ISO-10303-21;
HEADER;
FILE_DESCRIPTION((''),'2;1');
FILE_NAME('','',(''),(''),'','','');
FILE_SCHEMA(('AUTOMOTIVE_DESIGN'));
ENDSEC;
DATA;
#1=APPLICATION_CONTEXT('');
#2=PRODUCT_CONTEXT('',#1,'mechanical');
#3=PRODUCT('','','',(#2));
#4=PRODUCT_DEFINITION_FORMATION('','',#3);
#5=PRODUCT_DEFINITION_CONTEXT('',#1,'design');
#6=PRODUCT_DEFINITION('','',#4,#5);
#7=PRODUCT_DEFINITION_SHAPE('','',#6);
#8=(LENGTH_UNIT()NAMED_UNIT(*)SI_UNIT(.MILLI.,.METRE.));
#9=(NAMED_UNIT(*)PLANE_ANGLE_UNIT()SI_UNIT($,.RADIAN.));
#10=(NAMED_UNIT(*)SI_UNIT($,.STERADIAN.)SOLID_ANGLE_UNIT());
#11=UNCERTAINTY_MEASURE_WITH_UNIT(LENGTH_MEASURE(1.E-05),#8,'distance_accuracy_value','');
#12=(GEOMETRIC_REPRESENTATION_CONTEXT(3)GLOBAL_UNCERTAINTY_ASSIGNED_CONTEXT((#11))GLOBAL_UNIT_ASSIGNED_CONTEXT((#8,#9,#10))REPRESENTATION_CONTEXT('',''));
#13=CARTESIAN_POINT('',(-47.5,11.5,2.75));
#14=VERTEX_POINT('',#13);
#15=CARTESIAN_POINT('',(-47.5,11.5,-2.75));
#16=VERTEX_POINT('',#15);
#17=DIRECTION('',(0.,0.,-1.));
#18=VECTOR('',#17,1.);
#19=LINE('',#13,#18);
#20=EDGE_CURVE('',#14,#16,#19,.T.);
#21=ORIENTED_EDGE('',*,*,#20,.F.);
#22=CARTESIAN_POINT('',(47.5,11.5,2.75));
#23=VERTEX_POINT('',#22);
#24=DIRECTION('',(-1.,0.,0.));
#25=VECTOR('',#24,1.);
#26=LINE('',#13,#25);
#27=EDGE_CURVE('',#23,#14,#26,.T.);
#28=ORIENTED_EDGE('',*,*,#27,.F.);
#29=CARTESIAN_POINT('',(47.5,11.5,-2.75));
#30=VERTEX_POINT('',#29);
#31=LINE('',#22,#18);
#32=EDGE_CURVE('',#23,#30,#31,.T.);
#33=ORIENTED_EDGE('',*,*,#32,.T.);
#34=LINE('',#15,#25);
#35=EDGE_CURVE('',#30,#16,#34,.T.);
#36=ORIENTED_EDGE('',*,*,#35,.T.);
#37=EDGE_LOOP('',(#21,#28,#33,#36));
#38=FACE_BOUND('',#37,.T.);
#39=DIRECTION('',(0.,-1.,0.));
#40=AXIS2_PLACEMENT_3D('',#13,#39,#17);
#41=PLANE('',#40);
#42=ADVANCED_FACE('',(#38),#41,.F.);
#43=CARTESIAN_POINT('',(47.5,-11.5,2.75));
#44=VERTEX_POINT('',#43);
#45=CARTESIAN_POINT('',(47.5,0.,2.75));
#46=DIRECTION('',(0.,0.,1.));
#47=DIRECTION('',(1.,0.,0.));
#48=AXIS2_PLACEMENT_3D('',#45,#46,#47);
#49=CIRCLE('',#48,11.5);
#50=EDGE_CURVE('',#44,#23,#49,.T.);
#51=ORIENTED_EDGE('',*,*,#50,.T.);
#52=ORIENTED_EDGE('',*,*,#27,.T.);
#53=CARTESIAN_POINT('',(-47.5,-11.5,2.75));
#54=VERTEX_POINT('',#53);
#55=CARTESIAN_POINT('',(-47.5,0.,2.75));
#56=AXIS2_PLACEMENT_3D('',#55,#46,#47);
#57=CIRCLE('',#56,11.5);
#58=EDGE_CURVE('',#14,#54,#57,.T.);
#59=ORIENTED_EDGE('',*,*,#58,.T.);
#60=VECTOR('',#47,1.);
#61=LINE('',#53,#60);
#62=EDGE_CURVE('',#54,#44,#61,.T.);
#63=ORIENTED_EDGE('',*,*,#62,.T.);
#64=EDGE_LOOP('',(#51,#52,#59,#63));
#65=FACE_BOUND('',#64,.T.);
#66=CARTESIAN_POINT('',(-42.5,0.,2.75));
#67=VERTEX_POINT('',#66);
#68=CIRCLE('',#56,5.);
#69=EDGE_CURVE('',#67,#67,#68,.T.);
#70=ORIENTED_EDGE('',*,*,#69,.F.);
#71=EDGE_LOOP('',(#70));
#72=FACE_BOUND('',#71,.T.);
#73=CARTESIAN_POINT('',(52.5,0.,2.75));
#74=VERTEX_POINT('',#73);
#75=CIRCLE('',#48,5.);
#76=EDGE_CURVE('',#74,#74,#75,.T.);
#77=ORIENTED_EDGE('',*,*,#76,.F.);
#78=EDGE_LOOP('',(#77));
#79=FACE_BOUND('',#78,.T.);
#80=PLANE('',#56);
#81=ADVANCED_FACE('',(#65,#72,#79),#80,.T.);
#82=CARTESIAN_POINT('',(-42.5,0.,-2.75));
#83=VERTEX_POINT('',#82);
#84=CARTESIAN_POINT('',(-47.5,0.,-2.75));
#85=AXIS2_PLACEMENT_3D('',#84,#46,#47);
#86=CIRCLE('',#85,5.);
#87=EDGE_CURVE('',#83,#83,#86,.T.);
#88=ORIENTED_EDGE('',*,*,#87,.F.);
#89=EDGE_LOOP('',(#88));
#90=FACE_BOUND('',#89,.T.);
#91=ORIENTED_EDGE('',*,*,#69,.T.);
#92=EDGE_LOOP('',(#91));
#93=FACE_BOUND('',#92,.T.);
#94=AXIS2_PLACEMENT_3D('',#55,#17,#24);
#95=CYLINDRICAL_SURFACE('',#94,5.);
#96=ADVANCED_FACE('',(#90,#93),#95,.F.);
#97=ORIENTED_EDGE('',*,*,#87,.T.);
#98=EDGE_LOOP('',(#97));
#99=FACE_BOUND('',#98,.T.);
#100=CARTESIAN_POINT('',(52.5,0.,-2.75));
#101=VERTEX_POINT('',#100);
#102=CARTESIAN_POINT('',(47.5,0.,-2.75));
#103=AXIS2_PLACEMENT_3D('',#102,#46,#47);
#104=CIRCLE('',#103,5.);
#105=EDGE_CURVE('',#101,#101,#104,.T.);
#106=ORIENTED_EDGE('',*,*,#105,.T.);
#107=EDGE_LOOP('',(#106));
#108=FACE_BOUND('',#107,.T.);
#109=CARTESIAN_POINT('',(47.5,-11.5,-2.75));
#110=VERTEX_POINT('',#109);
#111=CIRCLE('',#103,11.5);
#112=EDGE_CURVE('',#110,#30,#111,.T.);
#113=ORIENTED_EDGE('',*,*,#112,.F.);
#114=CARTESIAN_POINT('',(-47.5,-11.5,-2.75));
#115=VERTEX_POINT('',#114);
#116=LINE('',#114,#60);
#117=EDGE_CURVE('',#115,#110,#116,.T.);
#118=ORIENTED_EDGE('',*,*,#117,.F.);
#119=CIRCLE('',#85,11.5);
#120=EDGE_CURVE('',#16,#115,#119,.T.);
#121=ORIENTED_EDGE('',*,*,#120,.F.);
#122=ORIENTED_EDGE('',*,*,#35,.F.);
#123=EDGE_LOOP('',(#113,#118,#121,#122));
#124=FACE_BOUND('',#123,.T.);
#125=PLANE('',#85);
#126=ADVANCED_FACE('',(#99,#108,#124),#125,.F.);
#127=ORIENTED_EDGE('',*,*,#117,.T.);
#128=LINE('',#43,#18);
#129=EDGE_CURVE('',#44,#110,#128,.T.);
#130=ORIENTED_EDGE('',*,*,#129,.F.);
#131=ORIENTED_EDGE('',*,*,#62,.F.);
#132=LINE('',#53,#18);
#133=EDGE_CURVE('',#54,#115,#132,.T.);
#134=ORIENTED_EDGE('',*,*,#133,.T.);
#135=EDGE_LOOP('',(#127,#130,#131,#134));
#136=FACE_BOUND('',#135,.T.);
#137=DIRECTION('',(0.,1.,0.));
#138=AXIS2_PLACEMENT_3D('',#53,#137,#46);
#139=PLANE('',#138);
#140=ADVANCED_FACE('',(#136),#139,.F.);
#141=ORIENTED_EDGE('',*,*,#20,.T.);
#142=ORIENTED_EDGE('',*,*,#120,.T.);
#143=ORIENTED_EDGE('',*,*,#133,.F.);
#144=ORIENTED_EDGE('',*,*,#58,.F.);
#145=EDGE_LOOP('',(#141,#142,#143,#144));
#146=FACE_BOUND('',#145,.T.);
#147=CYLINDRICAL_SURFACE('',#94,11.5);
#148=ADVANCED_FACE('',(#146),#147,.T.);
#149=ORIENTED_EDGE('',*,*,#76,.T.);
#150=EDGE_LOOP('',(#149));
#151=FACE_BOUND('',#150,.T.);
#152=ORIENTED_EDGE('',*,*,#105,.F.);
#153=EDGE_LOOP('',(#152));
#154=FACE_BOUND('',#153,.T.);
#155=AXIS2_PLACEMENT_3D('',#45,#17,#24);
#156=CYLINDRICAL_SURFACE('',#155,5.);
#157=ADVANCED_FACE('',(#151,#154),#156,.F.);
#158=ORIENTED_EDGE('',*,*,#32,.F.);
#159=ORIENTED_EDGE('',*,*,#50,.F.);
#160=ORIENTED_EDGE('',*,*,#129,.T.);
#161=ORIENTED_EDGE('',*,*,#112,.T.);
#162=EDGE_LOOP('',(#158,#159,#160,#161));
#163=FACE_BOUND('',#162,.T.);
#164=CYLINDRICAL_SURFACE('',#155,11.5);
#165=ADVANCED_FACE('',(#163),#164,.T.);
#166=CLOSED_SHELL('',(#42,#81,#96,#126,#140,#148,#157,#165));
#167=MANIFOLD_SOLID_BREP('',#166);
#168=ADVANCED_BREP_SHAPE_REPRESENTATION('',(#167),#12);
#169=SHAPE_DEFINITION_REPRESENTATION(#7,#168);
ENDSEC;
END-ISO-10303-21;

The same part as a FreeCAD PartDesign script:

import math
import FreeCAD as App
import Part
import Sketcher

V = App.Vector

doc = App.newDocument("Part")
body = doc.addObject("PartDesign::Body", "Body")

sketch1 = doc.addObject("Sketcher::SketchObject", "Sketch")
body.addObject(sketch1)
sketch1.AttachmentSupport = (doc.XY_Plane, [""])
sketch1.MapMode = "FlatFace"
sketch1.addGeometry([
    Part.LineSegment(V(48, 12, 0), V(-48, 12, 0)),
    Part.ArcOfCircle(Part.Circle(V(-48, 0, 0), V(0, 0, 1), 12), math.radians(90), math.radians(270)),
    Part.LineSegment(V(-48, -12, 0), V(48, -12, 0)),
    Part.ArcOfCircle(Part.Circle(V(48, 0, 0), V(0, 0, 1), 12), math.radians(-90), math.radians(90)),
    Part.Circle(V(48, 0, 0), V(0, 0, 1), 5),
    Part.Circle(V(-48, 0, 0), V(0, 0, 1), 5),
], False)
sketch1.addConstraint([
    Sketcher.Constraint("Tangent", 0, 2, 1, 1),
    Sketcher.Constraint("Tangent", 1, 2, 2, 1),
    Sketcher.Constraint("Tangent", 2, 2, 3, 1),
    Sketcher.Constraint("Tangent", 3, 2, 0, 1),
    Sketcher.Constraint("Horizontal", 0),
    Sketcher.Constraint("Horizontal", 2),
    Sketcher.Constraint("Coincident", 4, 3, 3, 3),
    Sketcher.Constraint("Coincident", 5, 3, 1, 3),
    Sketcher.Constraint("Equal", 4, 5),
    Sketcher.Constraint("Symmetric", 1, 3, 3, 3, -1, 1),
    Sketcher.Constraint("Diameter", 4, 10.0),
    Sketcher.Constraint("Radius", 1, 11.5),
    Sketcher.Constraint("DistanceX", 0, 2, 0, 1, 95.0),
])
pad1 = doc.addObject("PartDesign::Pad", "Pad")
body.addObject(pad1)
pad1.Profile = sketch1
pad1.Length = 5.5
pad1.Midplane = True

doc.recompute()
